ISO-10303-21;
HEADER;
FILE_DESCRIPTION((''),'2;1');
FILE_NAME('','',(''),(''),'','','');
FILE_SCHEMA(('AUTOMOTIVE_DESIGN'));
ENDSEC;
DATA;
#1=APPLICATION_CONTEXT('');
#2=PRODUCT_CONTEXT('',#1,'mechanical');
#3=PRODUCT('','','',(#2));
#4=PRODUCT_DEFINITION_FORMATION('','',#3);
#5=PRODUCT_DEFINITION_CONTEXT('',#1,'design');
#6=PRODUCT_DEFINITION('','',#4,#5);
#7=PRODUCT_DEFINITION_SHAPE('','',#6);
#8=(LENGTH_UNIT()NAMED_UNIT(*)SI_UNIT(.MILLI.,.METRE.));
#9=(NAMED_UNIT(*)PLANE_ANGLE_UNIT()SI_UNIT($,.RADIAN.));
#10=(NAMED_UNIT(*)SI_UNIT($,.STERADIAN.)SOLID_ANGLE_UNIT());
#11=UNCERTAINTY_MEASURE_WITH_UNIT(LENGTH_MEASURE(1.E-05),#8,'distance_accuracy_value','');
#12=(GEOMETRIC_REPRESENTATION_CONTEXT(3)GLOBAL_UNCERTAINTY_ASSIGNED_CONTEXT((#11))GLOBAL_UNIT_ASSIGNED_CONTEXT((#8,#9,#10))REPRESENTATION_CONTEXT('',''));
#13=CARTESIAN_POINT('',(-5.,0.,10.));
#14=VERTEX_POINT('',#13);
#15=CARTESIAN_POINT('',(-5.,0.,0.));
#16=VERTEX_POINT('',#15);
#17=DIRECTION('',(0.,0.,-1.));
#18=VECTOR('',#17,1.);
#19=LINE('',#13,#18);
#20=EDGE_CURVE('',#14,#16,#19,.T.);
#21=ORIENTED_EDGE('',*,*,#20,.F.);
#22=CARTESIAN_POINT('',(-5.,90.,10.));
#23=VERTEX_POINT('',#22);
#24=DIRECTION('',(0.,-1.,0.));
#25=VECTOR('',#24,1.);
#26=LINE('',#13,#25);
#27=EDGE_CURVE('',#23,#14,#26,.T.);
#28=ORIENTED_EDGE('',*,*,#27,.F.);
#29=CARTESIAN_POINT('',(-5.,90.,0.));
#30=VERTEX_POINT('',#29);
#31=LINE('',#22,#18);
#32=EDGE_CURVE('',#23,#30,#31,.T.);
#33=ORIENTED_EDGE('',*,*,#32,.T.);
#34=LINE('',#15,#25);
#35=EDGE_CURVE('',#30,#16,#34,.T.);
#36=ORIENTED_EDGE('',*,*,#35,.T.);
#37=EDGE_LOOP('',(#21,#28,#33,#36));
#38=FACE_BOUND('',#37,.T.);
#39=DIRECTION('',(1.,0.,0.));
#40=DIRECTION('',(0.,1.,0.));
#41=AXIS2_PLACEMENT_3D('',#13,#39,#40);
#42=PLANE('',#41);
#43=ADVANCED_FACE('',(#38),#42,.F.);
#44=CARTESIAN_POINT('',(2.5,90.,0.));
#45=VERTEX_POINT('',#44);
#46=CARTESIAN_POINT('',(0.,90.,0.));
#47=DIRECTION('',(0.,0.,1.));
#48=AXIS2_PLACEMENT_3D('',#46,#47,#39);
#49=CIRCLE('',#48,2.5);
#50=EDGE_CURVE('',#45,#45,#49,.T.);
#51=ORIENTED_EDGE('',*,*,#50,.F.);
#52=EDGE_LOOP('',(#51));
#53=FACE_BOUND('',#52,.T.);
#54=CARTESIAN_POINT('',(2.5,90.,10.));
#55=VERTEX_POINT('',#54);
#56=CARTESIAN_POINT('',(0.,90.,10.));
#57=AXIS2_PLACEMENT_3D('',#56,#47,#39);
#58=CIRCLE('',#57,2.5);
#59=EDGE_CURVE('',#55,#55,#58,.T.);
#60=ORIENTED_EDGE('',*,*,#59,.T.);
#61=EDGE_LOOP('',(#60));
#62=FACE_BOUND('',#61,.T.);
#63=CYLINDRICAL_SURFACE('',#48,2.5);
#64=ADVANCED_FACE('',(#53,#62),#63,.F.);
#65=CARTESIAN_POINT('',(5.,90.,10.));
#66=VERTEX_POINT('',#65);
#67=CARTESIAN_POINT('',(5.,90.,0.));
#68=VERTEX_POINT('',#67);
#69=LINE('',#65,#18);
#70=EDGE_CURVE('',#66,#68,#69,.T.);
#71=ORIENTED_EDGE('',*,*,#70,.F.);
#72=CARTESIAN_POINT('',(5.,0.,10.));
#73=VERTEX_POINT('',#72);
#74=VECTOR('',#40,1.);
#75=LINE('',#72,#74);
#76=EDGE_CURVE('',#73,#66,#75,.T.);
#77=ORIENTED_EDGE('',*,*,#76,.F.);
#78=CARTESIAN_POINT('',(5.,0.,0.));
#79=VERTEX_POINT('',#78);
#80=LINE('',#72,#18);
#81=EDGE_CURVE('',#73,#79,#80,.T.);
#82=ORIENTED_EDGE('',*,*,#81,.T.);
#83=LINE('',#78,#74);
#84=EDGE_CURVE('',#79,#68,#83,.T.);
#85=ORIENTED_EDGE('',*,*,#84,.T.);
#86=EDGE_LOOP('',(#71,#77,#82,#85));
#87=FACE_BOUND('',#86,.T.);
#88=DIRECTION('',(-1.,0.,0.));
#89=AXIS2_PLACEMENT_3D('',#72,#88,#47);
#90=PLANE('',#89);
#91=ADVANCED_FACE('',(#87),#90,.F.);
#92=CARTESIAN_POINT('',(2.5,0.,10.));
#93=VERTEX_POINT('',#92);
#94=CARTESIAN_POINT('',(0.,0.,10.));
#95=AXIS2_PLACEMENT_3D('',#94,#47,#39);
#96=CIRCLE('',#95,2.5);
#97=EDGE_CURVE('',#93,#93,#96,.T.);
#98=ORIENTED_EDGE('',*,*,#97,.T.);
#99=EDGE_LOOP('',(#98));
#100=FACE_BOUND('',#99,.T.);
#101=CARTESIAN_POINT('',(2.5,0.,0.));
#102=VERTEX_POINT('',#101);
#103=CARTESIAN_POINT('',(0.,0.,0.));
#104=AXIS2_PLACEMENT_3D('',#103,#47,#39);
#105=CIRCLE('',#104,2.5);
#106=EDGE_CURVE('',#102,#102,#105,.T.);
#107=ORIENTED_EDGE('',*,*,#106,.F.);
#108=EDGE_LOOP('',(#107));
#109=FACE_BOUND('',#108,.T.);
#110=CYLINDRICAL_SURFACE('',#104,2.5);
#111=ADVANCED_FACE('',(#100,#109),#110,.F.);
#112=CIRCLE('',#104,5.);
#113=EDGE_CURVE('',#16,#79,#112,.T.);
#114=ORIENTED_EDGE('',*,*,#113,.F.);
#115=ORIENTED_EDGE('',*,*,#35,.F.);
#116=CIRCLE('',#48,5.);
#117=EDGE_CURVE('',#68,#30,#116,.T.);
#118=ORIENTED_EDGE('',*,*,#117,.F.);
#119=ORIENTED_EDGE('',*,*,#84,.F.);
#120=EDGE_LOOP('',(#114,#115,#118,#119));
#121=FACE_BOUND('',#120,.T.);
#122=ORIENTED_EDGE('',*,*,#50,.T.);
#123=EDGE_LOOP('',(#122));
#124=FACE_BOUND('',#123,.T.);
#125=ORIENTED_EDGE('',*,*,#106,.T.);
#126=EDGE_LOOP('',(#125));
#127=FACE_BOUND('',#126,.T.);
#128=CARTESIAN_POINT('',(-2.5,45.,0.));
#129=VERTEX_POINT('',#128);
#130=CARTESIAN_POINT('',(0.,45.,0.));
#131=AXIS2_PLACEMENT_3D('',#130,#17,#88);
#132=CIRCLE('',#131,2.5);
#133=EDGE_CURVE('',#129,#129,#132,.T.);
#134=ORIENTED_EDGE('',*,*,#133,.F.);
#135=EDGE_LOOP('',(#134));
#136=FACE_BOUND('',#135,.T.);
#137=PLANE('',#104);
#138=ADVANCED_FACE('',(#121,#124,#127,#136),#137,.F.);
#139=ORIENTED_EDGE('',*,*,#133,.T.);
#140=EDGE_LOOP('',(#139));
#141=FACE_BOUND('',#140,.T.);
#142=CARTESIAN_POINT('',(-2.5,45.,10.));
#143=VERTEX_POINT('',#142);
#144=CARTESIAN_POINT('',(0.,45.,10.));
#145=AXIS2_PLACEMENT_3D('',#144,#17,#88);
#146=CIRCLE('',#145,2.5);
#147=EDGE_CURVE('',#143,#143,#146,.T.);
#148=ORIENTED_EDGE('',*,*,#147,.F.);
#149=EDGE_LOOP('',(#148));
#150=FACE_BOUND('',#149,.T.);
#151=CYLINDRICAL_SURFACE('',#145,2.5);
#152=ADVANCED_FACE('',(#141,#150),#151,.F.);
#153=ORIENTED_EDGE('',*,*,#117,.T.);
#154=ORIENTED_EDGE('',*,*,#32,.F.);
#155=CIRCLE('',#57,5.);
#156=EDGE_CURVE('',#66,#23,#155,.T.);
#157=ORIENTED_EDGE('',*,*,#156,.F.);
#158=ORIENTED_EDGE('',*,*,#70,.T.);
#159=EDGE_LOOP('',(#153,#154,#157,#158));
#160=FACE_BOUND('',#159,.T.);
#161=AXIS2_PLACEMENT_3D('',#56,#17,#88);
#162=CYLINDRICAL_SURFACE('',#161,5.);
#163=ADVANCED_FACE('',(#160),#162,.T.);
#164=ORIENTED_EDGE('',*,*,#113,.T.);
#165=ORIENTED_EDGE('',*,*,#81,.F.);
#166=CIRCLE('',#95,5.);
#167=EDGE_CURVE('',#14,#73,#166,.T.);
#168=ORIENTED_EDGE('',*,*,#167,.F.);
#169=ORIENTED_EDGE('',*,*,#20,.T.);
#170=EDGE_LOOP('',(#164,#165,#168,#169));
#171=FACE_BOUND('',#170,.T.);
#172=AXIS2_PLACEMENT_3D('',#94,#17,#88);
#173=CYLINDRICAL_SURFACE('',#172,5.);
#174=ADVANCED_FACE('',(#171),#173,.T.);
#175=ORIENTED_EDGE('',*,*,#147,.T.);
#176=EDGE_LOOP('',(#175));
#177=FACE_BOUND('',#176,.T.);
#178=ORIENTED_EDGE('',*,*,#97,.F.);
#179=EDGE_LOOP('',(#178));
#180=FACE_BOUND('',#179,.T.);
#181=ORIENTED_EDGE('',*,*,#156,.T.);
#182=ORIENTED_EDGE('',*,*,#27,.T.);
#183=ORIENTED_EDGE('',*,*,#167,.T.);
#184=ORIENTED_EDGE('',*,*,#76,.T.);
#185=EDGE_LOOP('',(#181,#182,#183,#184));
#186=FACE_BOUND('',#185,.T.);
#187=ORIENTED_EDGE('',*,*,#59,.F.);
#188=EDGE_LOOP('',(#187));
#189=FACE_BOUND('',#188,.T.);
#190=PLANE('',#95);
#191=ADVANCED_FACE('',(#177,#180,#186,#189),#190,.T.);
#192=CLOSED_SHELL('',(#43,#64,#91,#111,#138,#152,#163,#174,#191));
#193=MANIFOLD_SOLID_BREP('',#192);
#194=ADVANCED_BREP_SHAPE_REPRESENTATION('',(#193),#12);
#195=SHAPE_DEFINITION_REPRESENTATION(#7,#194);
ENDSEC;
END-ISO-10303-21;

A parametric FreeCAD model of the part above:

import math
import FreeCAD as App
import Part
import Sketcher
Q = App.Units.Quantity

doc = App.newDocument("Part")
body = doc.addObject("PartDesign::Body", "Body")

sketch1 = body.newObject("Sketcher::SketchObject", "Sketch")
sketch1.AttachmentSupport = (doc.getObject("XY_Plane"), [""])
sketch1.MapMode = "FlatFace"
sketch1.addGeometry([
    Part.LineSegment(App.Vector(-5, 90, 0), App.Vector(-5, 0, 0)),
    Part.ArcOfCircle(Part.Circle(App.Vector(0, 0, 0), App.Vector(0, 0, 1), 5), math.radians(180), math.radians(360)),
    Part.LineSegment(App.Vector(5, 0, 0), App.Vector(5, 90, 0)),
    Part.ArcOfCircle(Part.Circle(App.Vector(0, 90, 0), App.Vector(0, 0, 1), 5), math.radians(0), math.radians(180)),
], False)
sketch1.addConstraint([
    Sketcher.Constraint("Tangent", 0, 2, 1, 1),
    Sketcher.Constraint("Tangent", 1, 2, 2, 1),
    Sketcher.Constraint("Tangent", 2, 2, 3, 1),
    Sketcher.Constraint("Tangent", 3, 2, 0, 1),
    Sketcher.Constraint("Vertical", 0),
    Sketcher.Constraint("Vertical", 2),
    Sketcher.Constraint("Coincident", 1, 3, -1, 1),
    Sketcher.Constraint("Radius", 1, Q("5 mm")),
    Sketcher.Constraint("DistanceY", 0, 2, 0, 1, Q("90 mm")),
])
pad1 = body.newObject("PartDesign::Pad", "Pad")
pad1.Profile = sketch1
pad1.Length = 10

sketch2 = body.newObject("Sketcher::SketchObject", "Sketch001")
sketch2.AttachmentSupport = (doc.getObject("XY_Plane"), [""])
sketch2.MapMode = "FlatFace"
sketch2.addGeometry(Part.Circle(App.Vector(0, 45, 0), App.Vector(0, 0, 1), 2.5), False)
sketch2.addConstraint([
    Sketcher.Constraint("PointOnObject", 0, 3, -2),
    Sketcher.Constraint("Diameter", 0, Q("5 mm")),
    Sketcher.Constraint("DistanceY", -1, 1, 0, 3, Q("45 mm")),
])
pocket1 = body.newObject("PartDesign::Pocket", "Pocket")
pocket1.Profile = sketch2
pocket1.Length = 10
pocket1.Reversed = True

sketch3 = body.newObject("Sketcher::SketchObject", "Sketch002")
sketch3.AttachmentSupport = (doc.getObject("XY_Plane"), [""])
sketch3.MapMode = "FlatFace"
sketch3.AttachmentOffset = App.Placement(App.Vector(0, 0, 10), App.Rotation())
sketch3.addGeometry(Part.Circle(App.Vector(0, 90, 0), App.Vector(0, 0, 1), 2.5), False)
sketch3.addConstraint([
    Sketcher.Constraint("PointOnObject", 0, 3, -2),
    Sketcher.Constraint("Diameter", 0, Q("5 mm")),
    Sketcher.Constraint("DistanceY", -1, 1, 0, 3, Q("90 mm")),
])
pocket2 = body.newObject("PartDesign::Pocket", "Pocket001")
pocket2.Profile = sketch3
pocket2.Length = 10

sketch4 = body.newObject("Sketcher::SketchObject", "Sketch003")
sketch4.AttachmentSupport = (doc.getObject("XY_Plane"), [""])
sketch4.MapMode = "FlatFace"
sketch4.AttachmentOffset = App.Placement(App.Vector(0, 0, 10), App.Rotation())
sketch4.addGeometry(Part.Circle(App.Vector(0, 0, 0), App.Vector(0, 0, 1), 2.5), False)
sketch4.addConstraint([
    Sketcher.Constraint("Coincident", 0, 3, -1, 1),
    Sketcher.Constraint("Diameter", 0, Q("5 mm")),
])
pocket3 = body.newObject("PartDesign::Pocket", "Pocket002")
pocket3.Profile = sketch4
pocket3.Length = 10

doc.recompute()
